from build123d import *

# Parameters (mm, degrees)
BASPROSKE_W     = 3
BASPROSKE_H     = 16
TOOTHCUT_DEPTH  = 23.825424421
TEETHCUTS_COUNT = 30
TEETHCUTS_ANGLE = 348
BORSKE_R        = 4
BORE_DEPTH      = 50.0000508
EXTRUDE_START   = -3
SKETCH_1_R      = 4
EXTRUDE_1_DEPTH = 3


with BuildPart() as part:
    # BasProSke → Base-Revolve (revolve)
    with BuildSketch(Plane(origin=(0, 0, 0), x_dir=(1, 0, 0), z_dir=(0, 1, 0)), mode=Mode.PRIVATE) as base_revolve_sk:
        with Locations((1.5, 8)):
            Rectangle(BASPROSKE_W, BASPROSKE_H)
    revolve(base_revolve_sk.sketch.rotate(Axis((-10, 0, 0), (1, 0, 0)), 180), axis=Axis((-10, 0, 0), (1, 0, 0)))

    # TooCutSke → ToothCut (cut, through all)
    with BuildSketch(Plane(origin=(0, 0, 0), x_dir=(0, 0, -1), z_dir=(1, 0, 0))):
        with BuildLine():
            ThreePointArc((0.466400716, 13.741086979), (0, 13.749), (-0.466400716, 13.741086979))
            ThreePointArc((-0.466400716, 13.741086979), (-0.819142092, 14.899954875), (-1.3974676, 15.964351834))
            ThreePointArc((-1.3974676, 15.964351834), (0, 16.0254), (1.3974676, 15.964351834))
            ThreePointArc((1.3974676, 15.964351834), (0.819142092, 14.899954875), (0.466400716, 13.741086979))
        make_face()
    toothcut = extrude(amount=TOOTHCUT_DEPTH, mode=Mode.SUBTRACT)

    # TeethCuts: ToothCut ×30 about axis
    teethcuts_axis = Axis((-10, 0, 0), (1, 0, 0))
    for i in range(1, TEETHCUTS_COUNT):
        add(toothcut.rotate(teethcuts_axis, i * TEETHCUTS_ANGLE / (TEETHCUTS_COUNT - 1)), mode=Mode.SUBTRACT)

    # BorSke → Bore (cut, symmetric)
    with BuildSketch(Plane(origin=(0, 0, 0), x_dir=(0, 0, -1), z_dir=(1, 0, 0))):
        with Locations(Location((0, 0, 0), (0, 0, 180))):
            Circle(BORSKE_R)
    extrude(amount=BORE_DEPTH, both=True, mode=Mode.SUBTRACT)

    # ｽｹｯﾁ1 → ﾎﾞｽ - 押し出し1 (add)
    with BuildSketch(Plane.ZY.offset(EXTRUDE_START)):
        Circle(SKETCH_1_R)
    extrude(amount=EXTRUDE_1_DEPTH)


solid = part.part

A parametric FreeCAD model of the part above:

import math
import FreeCAD as App
import Part
import Sketcher


def add_polygon(sketch, points):
    """Adds a closed chain of lines whose ends are joined by coincident constraints."""
    first, n = sketch.GeometryCount, len(points)
    for a, b in zip(points, points[1:] + points[:1]):
        sketch.addGeometry(Part.LineSegment(App.Vector(*a, 0), App.Vector(*b, 0)), False)
    for i in range(n):
        sketch.addConstraint(Sketcher.Constraint("Coincident", first + i, 2, first + (i + 1) % n, 1))

doc = App.newDocument("Part")
params = doc.addObject("Spreadsheet::Sheet", "Params")
for row, (alias, value) in enumerate([
    ("sketch1_width", "3 mm"),
    ("sketch1_height", "16 mm"),
    ("revolution_angle", "360 deg"),
    ("sketch2_radius", "6 mm"),
    ("sketch3_diameter", "8 mm"),
    ("pocket2_length", "100.000102 mm"),
    ("sketch4_diameter", "8 mm"),
    ("pad1_length", "3 mm"),
], start=1):
    params.set(f"A{row}", alias)
    params.set(f"B{row}", "=" + value)
    params.setAlias(f"B{row}", alias)

body = doc.addObject("PartDesign::Body", "Body")

sketch1 = body.newObject("Sketcher::SketchObject", "Sketch")
sketch1.AttachmentSupport = (doc.getObject("XZ_Plane"), [""])
sketch1.MapMode = "FlatFace"
add_polygon(sketch1, [(0, -16), (0, 0), (3, 0), (3, -16)])
sketch1.addConstraint(Sketcher.Constraint("Vertical", 0))
sketch1.addConstraint(Sketcher.Constraint("Horizontal", 1))
sketch1.addConstraint(Sketcher.Constraint("Vertical", 2))
sketch1.addConstraint(Sketcher.Constraint("Horizontal", 3))
sketch1.addConstraint(Sketcher.Constraint("Coincident", 0, 2, -1, 1))
sketch1.addConstraint(Sketcher.Constraint("DistanceX", 1, 1, 1, 2, 3.0))
sketch1.addConstraint(Sketcher.Constraint("DistanceY", 0, 1, 0, 2, 16.0))
sketch1.setExpression("Constraints[9]", "Params.sketch1_width")
sketch1.setExpression("Constraints[10]", "Params.sketch1_height")
revolution = body.newObject("PartDesign::Revolution", "Revolution")
revolution.Profile = sketch1
revolution.ReferenceAxis = (sketch1, ["H_Axis"])
revolution.setExpression("Angle", "Params.revolution_angle")

sketch2 = body.newObject("Sketcher::SketchObject", "Sketch001")
sketch2.AttachmentSupport = (doc.getObject("YZ_Plane"), [""])
sketch2.MapMode = "FlatFace"
sketch2.addGeometry(Part.ArcOfCircle(Part.Circle(App.Vector(0, 0, 0), App.Vector(0, 0, 1), 13.7), math.radians(-1.94), math.radians(1.94)), False)
sketch2.addGeometry(Part.ArcOfCircle(Part.Circle(App.Vector(12.6, -6.4, 0), App.Vector(0, 0, 1), 6), math.radians(56), math.radians(79)), False)
sketch2.addGeometry(Part.ArcOfCircle(Part.Circle(App.Vector(0, 0, 0), App.Vector(0, 0, 1), 16), math.radians(-5), math.radians(5)), False)
sketch2.addGeometry(Part.ArcOfCircle(Part.Circle(App.Vector(12.6, 6.4, 0), App.Vector(0, 0, 1), 6), math.radians(-79), math.radians(-56)), False)
sketch2.addConstraint(Sketcher.Constraint("Coincident", 0, 1, 1, 2))
sketch2.addConstraint(Sketcher.Constraint("Coincident", 1, 1, 2, 1))
sketch2.addConstraint(Sketcher.Constraint("Coincident", 2, 2, 3, 2))
sketch2.addConstraint(Sketcher.Constraint("Coincident", 3, 1, 0, 2))
sketch2.addConstraint(Sketcher.Constraint("Coincident", 0, 3, -1, 1))
sketch2.addConstraint(Sketcher.Constraint("Coincident", 2, 3, -1, 1))
sketch2.addConstraint(Sketcher.Constraint("Equal", 1, 3))
sketch2.addConstraint(Sketcher.Constraint("Symmetric", 1, 3, 3, 3, -1))
sketch2.addConstraint(Sketcher.Constraint("Radius", 1, 6.0))
sketch2.addConstraint(Sketcher.Constraint("Radius", 0, 13.749))
sketch2.addConstraint(Sketcher.Constraint("Radius", 2, 16.0254))
sketch2.addConstraint(Sketcher.Constraint("DistanceY", 0, 1, -1, 1, 0.466401))
sketch2.addConstraint(Sketcher.Constraint("DistanceX", -1, 1, 1, 1, 15.964352))
sketch2.setExpression("Constraints[8]", "Params.sketch2_radius")
pocket1 = body.newObject("PartDesign::Pocket", "Pocket")
pocket1.Profile = sketch2
pocket1.Type = "ThroughAll"
pocket1.Reversed = True
doc.recompute()

polarpattern = body.newObject("PartDesign::PolarPattern", "PolarPattern")
polarpattern.Originals = [pocket1]
polarpattern.Axis = (doc.getObject("X_Axis"), [""])
polarpattern.Angle = 360
polarpattern.Occurrences = 30
body.Tip = polarpattern

sketch3 = body.newObject("Sketcher::SketchObject", "Sketch002")
sketch3.AttachmentSupport = (doc.getObject("YZ_Plane"), [""])
sketch3.MapMode = "FlatFace"
sketch3.addGeometry(Part.Circle(App.Vector(0, 0, 0), App.Vector(0, 0, 1), 4), False)
sketch3.addConstraint(Sketcher.Constraint("Coincident", 0, 3, -1, 1))
sketch3.addConstraint(Sketcher.Constraint("Diameter", 0, 8.0))
sketch3.setExpression("Constraints[1]", "Params.sketch3_diameter")
pocket2 = body.newObject("PartDesign::Pocket", "Pocket001")
pocket2.Profile = sketch3
pocket2.setExpression("Length", "Params.pocket2_length")
pocket2.Midplane = True

sketch4 = body.newObject("Sketcher::SketchObject", "Sketch003")
sketch4.AttachmentSupport = (doc.getObject("YZ_Plane"), [""])
sketch4.MapMode = "FlatFace"
sketch4.AttachmentOffset = App.Placement(App.Vector(0, 0, 3), App.Rotation())
sketch4.addGeometry(Part.Circle(App.Vector(0, 0, 0), App.Vector(0, 0, 1), 4), False)
sketch4.addConstraint(Sketcher.Constraint("Coincident", 0, 3, -1, 1))
sketch4.addConstraint(Sketcher.Constraint("Diameter", 0, 8.0))
sketch4.setExpression("Constraints[1]", "Params.sketch4_diameter")
pad1 = body.newObject("PartDesign::Pad", "Pad")
pad1.Profile = sketch4
pad1.setExpression("Length", "Params.pad1_length")
pad1.Reversed = True

doc.recompute()
